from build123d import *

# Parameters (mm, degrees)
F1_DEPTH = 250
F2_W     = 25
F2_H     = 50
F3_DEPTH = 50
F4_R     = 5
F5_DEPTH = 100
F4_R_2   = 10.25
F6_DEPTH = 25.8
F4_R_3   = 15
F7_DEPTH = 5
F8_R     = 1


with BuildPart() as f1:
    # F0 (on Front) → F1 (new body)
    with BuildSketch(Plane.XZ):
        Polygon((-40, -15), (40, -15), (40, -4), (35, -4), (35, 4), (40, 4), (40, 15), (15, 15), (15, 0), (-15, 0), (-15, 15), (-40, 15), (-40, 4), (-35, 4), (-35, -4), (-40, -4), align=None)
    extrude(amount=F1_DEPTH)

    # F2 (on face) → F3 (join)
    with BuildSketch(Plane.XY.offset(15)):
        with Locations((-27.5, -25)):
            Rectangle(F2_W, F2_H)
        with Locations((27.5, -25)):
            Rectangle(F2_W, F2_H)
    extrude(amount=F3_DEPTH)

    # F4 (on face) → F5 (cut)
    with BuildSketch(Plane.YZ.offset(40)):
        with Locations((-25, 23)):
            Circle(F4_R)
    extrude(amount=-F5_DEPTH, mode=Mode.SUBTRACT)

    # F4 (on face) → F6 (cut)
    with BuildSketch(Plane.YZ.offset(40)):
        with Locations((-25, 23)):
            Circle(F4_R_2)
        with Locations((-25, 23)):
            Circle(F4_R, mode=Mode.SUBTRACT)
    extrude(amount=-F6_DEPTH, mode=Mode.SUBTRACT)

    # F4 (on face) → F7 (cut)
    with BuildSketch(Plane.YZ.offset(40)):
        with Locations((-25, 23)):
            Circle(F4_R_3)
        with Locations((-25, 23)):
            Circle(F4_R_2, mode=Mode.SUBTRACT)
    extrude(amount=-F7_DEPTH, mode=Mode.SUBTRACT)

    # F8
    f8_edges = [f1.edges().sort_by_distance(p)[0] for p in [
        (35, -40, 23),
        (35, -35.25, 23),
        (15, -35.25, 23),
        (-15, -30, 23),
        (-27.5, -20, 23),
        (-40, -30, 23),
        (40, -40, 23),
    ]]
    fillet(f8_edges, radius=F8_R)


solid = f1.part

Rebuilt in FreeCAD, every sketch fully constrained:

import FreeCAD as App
import Part
import Sketcher
from FreeCAD import Vector


def edges_at(feature, points):
    """Names of the edges that pass closest to the given points."""
    edges = feature.Shape.Edges
    near = lambda p: min(range(len(edges)), key=lambda i: edges[i].distToShape(Part.Vertex(*p))[0])
    return sorted({f"Edge{near(p) + 1}" for p in points})

doc = App.newDocument("Part")
body = doc.addObject("PartDesign::Body", "Body")

# Sketch on XZ plane
sketch1 = body.newObject("Sketcher::SketchObject", "Sketch")
sketch1.AttachmentSupport = (doc.getObject("XZ_Plane"), [""])
sketch1.MapMode = "FlatFace"
sketch1.addGeometry([
    Part.LineSegment(Vector(-40, -15, 0), Vector(40, -15, 0)),  # 0
    Part.LineSegment(Vector(40, -15, 0), Vector(40, -4, 0)),  # 1
    Part.LineSegment(Vector(40, -4, 0), Vector(35, -4, 0)),  # 2
    Part.LineSegment(Vector(35, -4, 0), Vector(35, 4, 0)),  # 3
    Part.LineSegment(Vector(35, 4, 0), Vector(40, 4, 0)),  # 4
    Part.LineSegment(Vector(40, 4, 0), Vector(40, 15, 0)),  # 5
    Part.LineSegment(Vector(40, 15, 0), Vector(15, 15, 0)),  # 6
    Part.LineSegment(Vector(15, 15, 0), Vector(15, 0, 0)),  # 7
    Part.LineSegment(Vector(15, 0, 0), Vector(-15, 0, 0)),  # 8
    Part.LineSegment(Vector(-15, 0, 0), Vector(-15, 15, 0)),  # 9
    Part.LineSegment(Vector(-15, 15, 0), Vector(-40, 15, 0)),  # 10
    Part.LineSegment(Vector(-40, 15, 0), Vector(-40, 4, 0)),  # 11
    Part.LineSegment(Vector(-40, 4, 0), Vector(-35, 4, 0)),  # 12
    Part.LineSegment(Vector(-35, 4, 0), Vector(-35, -4, 0)),  # 13
    Part.LineSegment(Vector(-35, -4, 0), Vector(-40, -4, 0)),  # 14
    Part.LineSegment(Vector(-40, -4, 0), Vector(-40, -15, 0)),  # 15
], False)
sketch1.addConstraint([
    Sketcher.Constraint("Coincident", 0, 2, 1, 1),
    Sketcher.Constraint("Coincident", 1, 2, 2, 1),
    Sketcher.Constraint("Coincident", 2, 2, 3, 1),
    Sketcher.Constraint("Coincident", 3, 2, 4, 1),
    Sketcher.Constraint("Coincident", 4, 2, 5, 1),
    Sketcher.Constraint("Coincident", 5, 2, 6, 1),
    Sketcher.Constraint("Coincident", 6, 2, 7, 1),
    Sketcher.Constraint("Coincident", 7, 2, 8, 1),
    Sketcher.Constraint("Coincident", 8, 2, 9, 1),
    Sketcher.Constraint("Coincident", 9, 2, 10, 1),
    Sketcher.Constraint("Coincident", 10, 2, 11, 1),
    Sketcher.Constraint("Coincident", 11, 2, 12, 1),
    Sketcher.Constraint("Coincident", 12, 2, 13, 1),
    Sketcher.Constraint("Coincident", 13, 2, 14, 1),
    Sketcher.Constraint("Coincident", 14, 2, 15, 1),
    Sketcher.Constraint("Coincident", 15, 2, 0, 1),
    Sketcher.Constraint("Horizontal", 0),
    Sketcher.Constraint("Vertical", 1),
    Sketcher.Constraint("Horizontal", 2),
    Sketcher.Constraint("Vertical", 3),
    Sketcher.Constraint("Horizontal", 4),
    Sketcher.Constraint("Vertical", 5),
    Sketcher.Constraint("Horizontal", 6),
    Sketcher.Constraint("Vertical", 7),
    Sketcher.Constraint("Horizontal", 8),
    Sketcher.Constraint("Vertical", 9),
    Sketcher.Constraint("Horizontal", 10),
    Sketcher.Constraint("Vertical", 11),
    Sketcher.Constraint("Horizontal", 12),
    Sketcher.Constraint("Vertical", 13),
    Sketcher.Constraint("Horizontal", 14),
    Sketcher.Constraint("Vertical", 15),
    Sketcher.Constraint("Symmetric", 7, 2, 8, 2, -1, 1),
    Sketcher.Constraint("Symmetric", 0, 2, 10, 2, -1, 1),
    Sketcher.Constraint("Symmetric", 2, 2, 12, 2, -1, 1),
    Sketcher.Constraint("Symmetric", 4, 2, 14, 2, -1, 1),
    Sketcher.Constraint("Symmetric", 5, 2, 10, 2, -2),
    Sketcher.Constraint("Horizontal", 4, 2, 11, 2),
    Sketcher.Constraint("DistanceX", 0, 1, 0, 2, 80.0),
    Sketcher.Constraint("DistanceX", 2, 2, 2, 1, 5.0),
    Sketcher.Constraint("DistanceX", 6, 2, 6, 1, 25.0),
    Sketcher.Constraint("DistanceY", 1, 1, 1, 2, 11.0),
    Sketcher.Constraint("DistanceY", 3, 1, 3, 2, 8.0),
])
pad1 = body.newObject("PartDesign::Pad", "Pad")
pad1.Profile = sketch1
pad1.Length = 250

# Sketch on XY plane
sketch2 = body.newObject("Sketcher::SketchObject", "Sketch001")
sketch2.AttachmentSupport = (doc.getObject("XY_Plane"), [""])
sketch2.MapMode = "FlatFace"
sketch2.AttachmentOffset = App.Placement(Vector(0, 0, 15), App.Rotation())
sketch2.addGeometry([
    Part.LineSegment(Vector(-40, 0, 0), Vector(-40, -50, 0)),  # 0
    Part.LineSegment(Vector(-40, -50, 0), Vector(-15, -50, 0)),  # 1
    Part.LineSegment(Vector(-15, -50, 0), Vector(-15, 0, 0)),  # 2
    Part.LineSegment(Vector(-15, 0, 0), Vector(-40, 0, 0)),  # 3
    Part.LineSegment(Vector(15, 0, 0), Vector(15, -50, 0)),  # 4
    Part.LineSegment(Vector(15, -50, 0), Vector(40, -50, 0)),  # 5
    Part.LineSegment(Vector(40, -50, 0), Vector(40, 0, 0)),  # 6
    Part.LineSegment(Vector(40, 0, 0), Vector(15, 0, 0)),  # 7
], False)
sketch2.addConstraint([
    Sketcher.Constraint("Coincident", 0, 2, 1, 1),
    Sketcher.Constraint("Coincident", 1, 2, 2, 1),
    Sketcher.Constraint("Coincident", 2, 2, 3, 1),
    Sketcher.Constraint("Coincident", 3, 2, 0, 1),
    Sketcher.Constraint("Coincident", 4, 2, 5, 1),
    Sketcher.Constraint("Coincident", 5, 2, 6, 1),
    Sketcher.Constraint("Coincident", 6, 2, 7, 1),
    Sketcher.Constraint("Coincident", 7, 2, 4, 1),
    Sketcher.Constraint("Vertical", 0),
    Sketcher.Constraint("Horizontal", 1),
    Sketcher.Constraint("Vertical", 2),
    Sketcher.Constraint("Horizontal", 3),
    Sketcher.Constraint("Vertical", 4),
    Sketcher.Constraint("Horizontal", 5),
    Sketcher.Constraint("Vertical", 6),
    Sketcher.Constraint("Horizontal", 7),
    Sketcher.Constraint("Symmetric", 3, 2, 6, 2, -1, 1),
    Sketcher.Constraint("Symmetric", 1, 2, 4, 2, -2),
    Sketcher.Constraint("PointOnObject", 2, 2, -1),
    Sketcher.Constraint("DistanceX", 1, 1, 1, 2, 25.0),
    Sketcher.Constraint("DistanceY", 0, 2, 0, 1, 50.0),
    Sketcher.Constraint("DistanceX", 0, 2, -1, 1, 40.0),
])
pad2 = body.newObject("PartDesign::Pad", "Pad001")
pad2.Profile = sketch2
pad2.Length = 50

# Sketch on YZ plane
sketch3 = body.newObject("Sketcher::SketchObject", "Sketch002")
sketch3.AttachmentSupport = (doc.getObject("YZ_Plane"), [""])
sketch3.MapMode = "FlatFace"
sketch3.AttachmentOffset = App.Placement(Vector(0, 0, 40), App.Rotation())
sketch3.addGeometry(Part.Circle(Vector(-25, 23, 0), Vector(0, 0, 1), 5), False)
sketch3.addConstraint([
    Sketcher.Constraint("Diameter", 0, 10.0),
    Sketcher.Constraint("DistanceX", 0, 3, -1, 1, 25.0),
    Sketcher.Constraint("DistanceY", -1, 1, 0, 3, 23.0),
])
pocket1 = body.newObject("PartDesign::Pocket", "Pocket")
pocket1.Profile = sketch3
pocket1.Length = 100

# Sketch on YZ plane
sketch4 = body.newObject("Sketcher::SketchObject", "Sketch003")
sketch4.AttachmentSupport = (doc.getObject("YZ_Plane"), [""])
sketch4.MapMode = "FlatFace"
sketch4.AttachmentOffset = App.Placement(Vector(0, 0, 40), App.Rotation())
sketch4.addGeometry([
    Part.Circle(Vector(-25, 23, 0), Vector(0, 0, 1), 10),
    Part.Circle(Vector(-25, 23, 0), Vector(0, 0, 1), 5),
], False)
sketch4.addConstraint([
    Sketcher.Constraint("Coincident", 1, 3, 0, 3),
    Sketcher.Constraint("Diameter", 1, 10.0),
    Sketcher.Constraint("Diameter", 0, 20.5),
    Sketcher.Constraint("DistanceX", 0, 3, -1, 1, 25.0),
    Sketcher.Constraint("DistanceY", -1, 1, 0, 3, 23.0),
])
pocket2 = body.newObject("PartDesign::Pocket", "Pocket001")
pocket2.Profile = sketch4
pocket2.Length = 25.8

# Sketch on YZ plane
sketch5 = body.newObject("Sketcher::SketchObject", "Sketch004")
sketch5.AttachmentSupport = (doc.getObject("YZ_Plane"), [""])
sketch5.MapMode = "FlatFace"
sketch5.AttachmentOffset = App.Placement(Vector(0, 0, 40), App.Rotation())
sketch5.addGeometry([
    Part.Circle(Vector(-25, 23, 0), Vector(0, 0, 1), 15),
    Part.Circle(Vector(-25, 23, 0), Vector(0, 0, 1), 10),
], False)
sketch5.addConstraint([
    Sketcher.Constraint("Coincident", 1, 3, 0, 3),
    Sketcher.Constraint("Diameter", 0, 30.0),
    Sketcher.Constraint("Diameter", 1, 20.5),
    Sketcher.Constraint("DistanceX", 0, 3, -1, 1, 25.0),
    Sketcher.Constraint("DistanceY", -1, 1, 0, 3, 23.0),
])
pocket3 = body.newObject("PartDesign::Pocket", "Pocket002")
pocket3.Profile = sketch5
pocket3.Length = 5
doc.recompute()

fillet = body.newObject("PartDesign::Fillet", "Fillet")
fillet.Base = (pocket3, edges_at(pocket3, [
    (35, -40, 23),
    (35, -35.25, 23),
    (15, -35.25, 23),
    (-15, -30, 23),
    (-27.5, -20, 23),
    (-40, -30, 23),
    (40, -40, 23),
]))
fillet.Radius = 1

doc.recompute()
